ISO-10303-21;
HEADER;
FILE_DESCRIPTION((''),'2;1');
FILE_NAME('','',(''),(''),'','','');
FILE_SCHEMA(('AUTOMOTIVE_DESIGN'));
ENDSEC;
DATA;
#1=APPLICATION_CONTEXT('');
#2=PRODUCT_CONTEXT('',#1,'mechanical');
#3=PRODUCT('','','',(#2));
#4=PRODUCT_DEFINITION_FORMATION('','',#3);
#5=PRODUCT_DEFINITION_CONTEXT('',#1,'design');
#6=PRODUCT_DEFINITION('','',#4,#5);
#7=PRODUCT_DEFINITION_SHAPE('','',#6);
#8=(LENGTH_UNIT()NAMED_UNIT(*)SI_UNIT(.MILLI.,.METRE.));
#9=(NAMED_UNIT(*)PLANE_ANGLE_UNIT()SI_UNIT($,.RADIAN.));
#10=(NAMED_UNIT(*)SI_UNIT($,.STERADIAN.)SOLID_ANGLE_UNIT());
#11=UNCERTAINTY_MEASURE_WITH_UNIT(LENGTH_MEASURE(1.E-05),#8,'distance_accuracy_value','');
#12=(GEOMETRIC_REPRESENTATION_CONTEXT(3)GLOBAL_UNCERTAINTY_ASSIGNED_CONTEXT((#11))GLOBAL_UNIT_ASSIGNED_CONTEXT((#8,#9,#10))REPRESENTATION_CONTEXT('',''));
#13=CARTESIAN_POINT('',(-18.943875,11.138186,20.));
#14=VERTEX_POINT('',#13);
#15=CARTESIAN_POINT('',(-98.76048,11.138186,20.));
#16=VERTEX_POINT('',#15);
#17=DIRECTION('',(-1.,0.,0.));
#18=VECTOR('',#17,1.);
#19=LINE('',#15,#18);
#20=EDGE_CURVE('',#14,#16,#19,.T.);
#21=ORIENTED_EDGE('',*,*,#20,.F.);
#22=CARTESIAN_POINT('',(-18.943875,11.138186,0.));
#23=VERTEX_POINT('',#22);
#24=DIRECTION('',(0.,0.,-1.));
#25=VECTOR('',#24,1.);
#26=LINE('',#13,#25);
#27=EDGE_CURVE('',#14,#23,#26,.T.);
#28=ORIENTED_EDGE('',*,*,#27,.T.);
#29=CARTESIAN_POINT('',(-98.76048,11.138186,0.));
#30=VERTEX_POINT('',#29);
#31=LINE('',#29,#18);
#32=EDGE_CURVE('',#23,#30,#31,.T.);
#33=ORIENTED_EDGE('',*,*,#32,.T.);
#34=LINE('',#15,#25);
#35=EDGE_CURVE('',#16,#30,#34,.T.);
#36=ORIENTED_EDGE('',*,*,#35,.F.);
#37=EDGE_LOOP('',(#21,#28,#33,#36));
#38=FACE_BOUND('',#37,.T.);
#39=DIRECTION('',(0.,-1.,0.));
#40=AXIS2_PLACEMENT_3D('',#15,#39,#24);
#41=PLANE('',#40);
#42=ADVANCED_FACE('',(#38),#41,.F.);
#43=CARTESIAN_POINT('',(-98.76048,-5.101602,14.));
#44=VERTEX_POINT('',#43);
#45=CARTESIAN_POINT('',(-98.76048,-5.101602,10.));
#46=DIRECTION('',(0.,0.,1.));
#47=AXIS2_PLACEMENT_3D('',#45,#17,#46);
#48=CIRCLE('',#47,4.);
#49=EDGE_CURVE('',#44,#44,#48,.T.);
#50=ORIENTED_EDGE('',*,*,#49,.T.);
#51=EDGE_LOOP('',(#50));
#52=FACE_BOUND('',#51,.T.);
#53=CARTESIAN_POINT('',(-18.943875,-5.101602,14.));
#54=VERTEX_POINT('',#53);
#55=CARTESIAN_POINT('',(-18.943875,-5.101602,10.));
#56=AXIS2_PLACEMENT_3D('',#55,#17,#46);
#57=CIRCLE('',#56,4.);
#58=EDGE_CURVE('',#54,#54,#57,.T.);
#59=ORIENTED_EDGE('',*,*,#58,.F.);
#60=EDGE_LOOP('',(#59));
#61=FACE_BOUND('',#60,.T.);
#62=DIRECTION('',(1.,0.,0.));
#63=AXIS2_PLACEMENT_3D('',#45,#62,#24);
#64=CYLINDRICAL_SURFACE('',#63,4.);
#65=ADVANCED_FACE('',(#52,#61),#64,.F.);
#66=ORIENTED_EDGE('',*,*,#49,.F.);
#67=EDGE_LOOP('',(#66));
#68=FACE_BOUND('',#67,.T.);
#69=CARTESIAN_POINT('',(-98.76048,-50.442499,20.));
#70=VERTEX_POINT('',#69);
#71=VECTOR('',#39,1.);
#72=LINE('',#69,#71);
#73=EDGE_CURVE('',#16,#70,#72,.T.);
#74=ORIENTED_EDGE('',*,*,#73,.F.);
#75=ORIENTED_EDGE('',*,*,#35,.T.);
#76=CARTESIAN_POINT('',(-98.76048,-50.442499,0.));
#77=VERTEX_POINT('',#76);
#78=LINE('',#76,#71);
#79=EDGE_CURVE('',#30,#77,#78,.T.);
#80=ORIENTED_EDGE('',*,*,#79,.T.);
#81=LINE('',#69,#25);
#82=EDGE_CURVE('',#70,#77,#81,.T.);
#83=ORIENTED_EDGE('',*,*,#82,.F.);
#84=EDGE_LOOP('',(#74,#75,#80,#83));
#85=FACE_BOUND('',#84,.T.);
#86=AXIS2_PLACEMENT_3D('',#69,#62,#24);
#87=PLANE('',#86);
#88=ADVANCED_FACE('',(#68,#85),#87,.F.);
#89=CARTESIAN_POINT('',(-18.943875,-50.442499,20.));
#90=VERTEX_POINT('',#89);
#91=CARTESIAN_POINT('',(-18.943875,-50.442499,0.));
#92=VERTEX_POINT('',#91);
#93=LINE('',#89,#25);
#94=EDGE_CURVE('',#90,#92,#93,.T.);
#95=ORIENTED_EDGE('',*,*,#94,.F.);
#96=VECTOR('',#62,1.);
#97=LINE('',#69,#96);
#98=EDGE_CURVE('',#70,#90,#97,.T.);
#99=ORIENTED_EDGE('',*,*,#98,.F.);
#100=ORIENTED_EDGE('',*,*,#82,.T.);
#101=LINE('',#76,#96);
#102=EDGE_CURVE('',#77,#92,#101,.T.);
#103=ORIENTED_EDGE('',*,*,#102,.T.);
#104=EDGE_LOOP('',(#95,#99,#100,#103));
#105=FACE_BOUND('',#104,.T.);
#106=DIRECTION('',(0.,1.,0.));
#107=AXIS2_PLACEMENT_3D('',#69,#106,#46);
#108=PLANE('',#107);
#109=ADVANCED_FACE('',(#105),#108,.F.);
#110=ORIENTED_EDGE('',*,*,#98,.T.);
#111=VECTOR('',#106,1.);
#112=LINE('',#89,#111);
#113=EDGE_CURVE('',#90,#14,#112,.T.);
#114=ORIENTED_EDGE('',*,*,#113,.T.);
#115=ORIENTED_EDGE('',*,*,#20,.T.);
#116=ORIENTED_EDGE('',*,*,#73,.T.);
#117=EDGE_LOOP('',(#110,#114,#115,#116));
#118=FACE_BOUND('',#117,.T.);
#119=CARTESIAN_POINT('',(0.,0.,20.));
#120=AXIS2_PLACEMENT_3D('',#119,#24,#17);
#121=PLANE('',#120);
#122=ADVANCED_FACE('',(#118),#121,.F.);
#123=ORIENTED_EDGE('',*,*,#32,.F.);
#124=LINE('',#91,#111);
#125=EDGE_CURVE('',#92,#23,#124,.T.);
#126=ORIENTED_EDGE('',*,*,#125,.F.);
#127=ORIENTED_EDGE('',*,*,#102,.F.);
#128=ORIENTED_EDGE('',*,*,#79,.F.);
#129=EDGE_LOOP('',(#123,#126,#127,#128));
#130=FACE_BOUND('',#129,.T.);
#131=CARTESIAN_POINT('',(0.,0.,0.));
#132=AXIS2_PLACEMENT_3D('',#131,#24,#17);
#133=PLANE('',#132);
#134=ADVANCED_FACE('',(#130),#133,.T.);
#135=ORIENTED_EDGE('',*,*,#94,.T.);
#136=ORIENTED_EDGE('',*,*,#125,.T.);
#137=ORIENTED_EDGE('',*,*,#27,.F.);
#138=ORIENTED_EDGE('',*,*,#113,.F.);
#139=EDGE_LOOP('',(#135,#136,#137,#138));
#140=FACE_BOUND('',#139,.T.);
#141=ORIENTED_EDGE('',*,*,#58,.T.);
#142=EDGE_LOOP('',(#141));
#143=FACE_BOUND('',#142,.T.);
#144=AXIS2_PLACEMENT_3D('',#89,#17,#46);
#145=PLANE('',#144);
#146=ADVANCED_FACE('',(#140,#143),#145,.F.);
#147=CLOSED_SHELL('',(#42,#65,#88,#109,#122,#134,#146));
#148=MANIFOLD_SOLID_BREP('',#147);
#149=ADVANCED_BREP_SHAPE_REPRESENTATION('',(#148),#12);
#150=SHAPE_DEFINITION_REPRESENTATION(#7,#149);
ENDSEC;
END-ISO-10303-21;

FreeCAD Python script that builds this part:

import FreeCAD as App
import Part
import Sketcher

V = App.Vector
Q = App.Units.Quantity


def add_polygon(sketch, points):
    """Adds a closed chain of lines whose ends are joined by coincident constraints."""
    first, n = sketch.GeometryCount, len(points)
    for a, b in zip(points, points[1:] + points[:1]):
        sketch.addGeometry(Part.LineSegment(App.Vector(*a, 0), App.Vector(*b, 0)), False)
    for i in range(n):
        sketch.addConstraint(Sketcher.Constraint("Coincident", first + i, 2, first + (i + 1) % n, 1))

doc = App.newDocument("Part")
body = doc.addObject("PartDesign::Body", "Body")

sketch1 = body.newObject("Sketcher::SketchObject", "Sketch")
sketch1.AttachmentSupport = (doc.getObject("XY_Plane"), [""])
sketch1.MapMode = "FlatFace"
add_polygon(sketch1, [(-99, 11), (-99, -50), (-19, -50), (-19, 11)])
sketch1.addConstraint([
    Sketcher.Constraint("Vertical", 0),
    Sketcher.Constraint("Horizontal", 1),
    Sketcher.Constraint("Vertical", 2),
    Sketcher.Constraint("Horizontal", 3),
    Sketcher.Constraint("DistanceY", 0, 2, -1, 1, Q("50.442499 mm")),
    Sketcher.Constraint("DistanceX", 1, 1, 1, 2, Q("79.816604 mm")),
    Sketcher.Constraint("DistanceY", 0, 2, 0, 1, Q("61.580684 mm")),
    Sketcher.Constraint("DistanceX", 0, 2, -1, 1, Q("98.76048 mm")),
])
pad1 = body.newObject("PartDesign::Pad", "Pad")
pad1.Profile = sketch1
pad1.Length = 20

sketch2 = body.newObject("Sketcher::SketchObject", "Sketch001")
sketch2.AttachmentSupport = (doc.getObject("YZ_Plane"), [""])
sketch2.MapMode = "FlatFace"
sketch2.AttachmentOffset = App.Placement(V(0, 0, -18.943875), App.Rotation())
sketch2.addGeometry(Part.Circle(V(-5.1, 10, 0), V(0, 0, 1), 4), False)
sketch2.addConstraint([
    Sketcher.Constraint("Diameter", 0, Q("8 mm")),
    Sketcher.Constraint("DistanceY", -1, 1, 0, 3, Q("10 mm")),
    Sketcher.Constraint("DistanceX", 0, 3, -1, 1, Q("5.101602 mm")),
])
pocket1 = body.newObject("PartDesign::Pocket", "Pocket")
pocket1.Profile = sketch2
pocket1.Type = "ThroughAll"

doc.recompute()
